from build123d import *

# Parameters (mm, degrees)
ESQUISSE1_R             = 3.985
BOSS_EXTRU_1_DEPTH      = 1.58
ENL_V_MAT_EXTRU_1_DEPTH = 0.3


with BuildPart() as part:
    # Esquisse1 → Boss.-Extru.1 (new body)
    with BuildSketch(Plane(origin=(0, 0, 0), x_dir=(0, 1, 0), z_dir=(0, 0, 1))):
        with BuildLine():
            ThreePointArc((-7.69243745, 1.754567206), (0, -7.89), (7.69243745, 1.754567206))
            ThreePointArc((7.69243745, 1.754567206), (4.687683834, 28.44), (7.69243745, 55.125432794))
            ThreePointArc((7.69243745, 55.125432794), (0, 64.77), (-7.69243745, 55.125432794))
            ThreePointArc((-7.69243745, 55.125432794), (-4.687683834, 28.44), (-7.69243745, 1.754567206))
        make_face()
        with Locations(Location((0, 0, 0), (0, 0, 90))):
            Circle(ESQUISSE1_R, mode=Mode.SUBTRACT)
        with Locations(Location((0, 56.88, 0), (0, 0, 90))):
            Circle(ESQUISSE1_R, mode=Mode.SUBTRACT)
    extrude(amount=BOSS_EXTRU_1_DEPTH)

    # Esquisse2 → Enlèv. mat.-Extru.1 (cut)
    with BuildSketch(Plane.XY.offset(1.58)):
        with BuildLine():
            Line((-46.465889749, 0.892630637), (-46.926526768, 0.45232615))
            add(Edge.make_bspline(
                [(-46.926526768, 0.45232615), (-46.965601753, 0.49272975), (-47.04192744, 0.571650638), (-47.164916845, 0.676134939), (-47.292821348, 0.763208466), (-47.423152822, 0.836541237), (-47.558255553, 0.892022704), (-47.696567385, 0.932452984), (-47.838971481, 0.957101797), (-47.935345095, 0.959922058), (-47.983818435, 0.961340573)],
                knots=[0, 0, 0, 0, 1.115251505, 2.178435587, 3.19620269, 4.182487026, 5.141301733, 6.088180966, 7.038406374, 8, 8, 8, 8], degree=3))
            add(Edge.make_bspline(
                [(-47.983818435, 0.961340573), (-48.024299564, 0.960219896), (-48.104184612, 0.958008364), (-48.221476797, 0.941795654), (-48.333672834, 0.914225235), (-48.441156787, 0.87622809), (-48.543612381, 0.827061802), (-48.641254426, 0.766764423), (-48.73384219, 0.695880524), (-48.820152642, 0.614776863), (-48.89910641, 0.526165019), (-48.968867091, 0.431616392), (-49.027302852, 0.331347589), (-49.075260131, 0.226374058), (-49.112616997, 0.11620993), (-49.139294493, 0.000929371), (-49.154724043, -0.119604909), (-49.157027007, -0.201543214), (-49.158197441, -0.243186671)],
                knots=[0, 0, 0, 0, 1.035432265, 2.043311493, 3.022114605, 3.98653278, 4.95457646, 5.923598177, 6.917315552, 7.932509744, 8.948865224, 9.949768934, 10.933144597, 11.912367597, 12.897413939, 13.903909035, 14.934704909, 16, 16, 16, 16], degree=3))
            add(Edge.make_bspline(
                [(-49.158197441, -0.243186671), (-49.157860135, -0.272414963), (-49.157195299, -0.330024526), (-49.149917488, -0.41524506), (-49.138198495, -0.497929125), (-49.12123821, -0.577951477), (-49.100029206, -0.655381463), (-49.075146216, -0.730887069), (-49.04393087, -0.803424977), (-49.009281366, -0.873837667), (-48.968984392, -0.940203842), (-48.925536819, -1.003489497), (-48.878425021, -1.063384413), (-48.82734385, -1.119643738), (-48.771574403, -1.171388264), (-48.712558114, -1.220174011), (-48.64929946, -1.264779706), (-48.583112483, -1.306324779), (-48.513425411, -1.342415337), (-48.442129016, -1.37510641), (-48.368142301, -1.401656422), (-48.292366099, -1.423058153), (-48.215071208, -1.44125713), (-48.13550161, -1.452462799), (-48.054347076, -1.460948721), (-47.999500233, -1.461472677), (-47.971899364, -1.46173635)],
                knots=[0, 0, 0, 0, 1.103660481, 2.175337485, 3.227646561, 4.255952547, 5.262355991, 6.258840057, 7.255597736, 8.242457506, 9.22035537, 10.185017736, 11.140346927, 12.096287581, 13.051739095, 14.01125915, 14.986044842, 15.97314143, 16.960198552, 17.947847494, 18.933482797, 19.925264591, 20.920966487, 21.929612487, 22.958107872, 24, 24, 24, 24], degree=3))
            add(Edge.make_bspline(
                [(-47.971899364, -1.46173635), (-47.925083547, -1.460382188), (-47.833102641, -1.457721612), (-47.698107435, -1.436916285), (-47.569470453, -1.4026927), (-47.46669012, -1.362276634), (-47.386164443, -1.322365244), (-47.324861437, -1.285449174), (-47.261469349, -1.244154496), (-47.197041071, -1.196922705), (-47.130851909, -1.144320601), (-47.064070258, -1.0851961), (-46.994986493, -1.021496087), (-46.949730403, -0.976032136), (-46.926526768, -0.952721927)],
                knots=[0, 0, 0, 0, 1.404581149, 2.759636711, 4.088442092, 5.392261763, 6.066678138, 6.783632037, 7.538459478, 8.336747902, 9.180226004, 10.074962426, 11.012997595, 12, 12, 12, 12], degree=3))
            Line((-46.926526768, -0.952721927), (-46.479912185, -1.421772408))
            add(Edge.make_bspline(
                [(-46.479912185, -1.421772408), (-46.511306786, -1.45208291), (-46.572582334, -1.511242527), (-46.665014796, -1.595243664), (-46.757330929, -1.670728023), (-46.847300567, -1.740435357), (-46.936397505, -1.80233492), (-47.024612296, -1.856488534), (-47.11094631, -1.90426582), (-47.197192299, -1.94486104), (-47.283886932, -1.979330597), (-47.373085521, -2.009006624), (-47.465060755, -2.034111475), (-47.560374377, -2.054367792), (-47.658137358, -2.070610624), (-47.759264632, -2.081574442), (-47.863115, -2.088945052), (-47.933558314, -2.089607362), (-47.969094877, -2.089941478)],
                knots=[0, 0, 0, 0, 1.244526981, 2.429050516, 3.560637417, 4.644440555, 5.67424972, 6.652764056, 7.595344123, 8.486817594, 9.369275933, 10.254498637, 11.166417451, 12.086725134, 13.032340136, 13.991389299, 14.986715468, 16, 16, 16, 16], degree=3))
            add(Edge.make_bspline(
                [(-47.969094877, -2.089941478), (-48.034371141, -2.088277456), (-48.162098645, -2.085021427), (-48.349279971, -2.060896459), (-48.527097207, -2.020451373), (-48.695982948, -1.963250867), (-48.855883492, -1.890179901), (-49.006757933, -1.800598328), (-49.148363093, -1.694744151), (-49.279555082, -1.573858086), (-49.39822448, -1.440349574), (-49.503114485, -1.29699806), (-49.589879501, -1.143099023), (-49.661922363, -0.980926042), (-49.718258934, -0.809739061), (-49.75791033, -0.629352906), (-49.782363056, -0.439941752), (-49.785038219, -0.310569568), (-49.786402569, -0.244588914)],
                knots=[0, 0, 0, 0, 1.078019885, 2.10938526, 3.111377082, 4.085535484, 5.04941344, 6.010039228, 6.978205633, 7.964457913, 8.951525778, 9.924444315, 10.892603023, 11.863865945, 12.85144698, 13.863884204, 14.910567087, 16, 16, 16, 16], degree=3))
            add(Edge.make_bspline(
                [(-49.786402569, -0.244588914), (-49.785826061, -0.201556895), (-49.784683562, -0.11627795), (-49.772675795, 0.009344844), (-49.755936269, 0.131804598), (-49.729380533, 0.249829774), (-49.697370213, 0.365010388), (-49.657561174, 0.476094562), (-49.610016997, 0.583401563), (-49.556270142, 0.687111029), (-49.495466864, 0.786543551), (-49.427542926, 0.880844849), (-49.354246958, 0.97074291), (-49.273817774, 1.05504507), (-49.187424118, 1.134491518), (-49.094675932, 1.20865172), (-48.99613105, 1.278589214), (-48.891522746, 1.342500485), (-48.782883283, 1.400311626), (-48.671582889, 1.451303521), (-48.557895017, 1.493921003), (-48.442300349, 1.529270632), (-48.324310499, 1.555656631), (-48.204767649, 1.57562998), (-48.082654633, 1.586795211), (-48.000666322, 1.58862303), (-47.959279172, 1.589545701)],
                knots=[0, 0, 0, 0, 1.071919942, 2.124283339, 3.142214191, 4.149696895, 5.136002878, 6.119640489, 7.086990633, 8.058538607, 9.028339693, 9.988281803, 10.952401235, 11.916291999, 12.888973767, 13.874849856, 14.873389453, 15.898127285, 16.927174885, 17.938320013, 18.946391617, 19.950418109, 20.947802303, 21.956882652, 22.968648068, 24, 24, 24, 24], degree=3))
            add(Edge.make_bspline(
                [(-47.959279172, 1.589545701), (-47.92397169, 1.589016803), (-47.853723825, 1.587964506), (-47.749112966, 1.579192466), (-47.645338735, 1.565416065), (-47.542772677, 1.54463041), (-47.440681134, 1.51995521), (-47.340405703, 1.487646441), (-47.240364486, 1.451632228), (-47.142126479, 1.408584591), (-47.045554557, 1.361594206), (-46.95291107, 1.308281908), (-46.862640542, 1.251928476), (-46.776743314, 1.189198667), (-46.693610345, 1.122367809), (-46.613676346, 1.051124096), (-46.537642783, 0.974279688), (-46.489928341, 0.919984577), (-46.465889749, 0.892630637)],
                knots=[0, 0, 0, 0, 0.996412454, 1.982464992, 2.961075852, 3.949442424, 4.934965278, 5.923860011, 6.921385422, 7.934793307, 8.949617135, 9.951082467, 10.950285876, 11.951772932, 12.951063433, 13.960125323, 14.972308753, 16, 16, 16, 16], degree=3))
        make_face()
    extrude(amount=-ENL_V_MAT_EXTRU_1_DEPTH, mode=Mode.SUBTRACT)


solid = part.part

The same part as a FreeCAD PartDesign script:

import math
import FreeCAD as App
import Part
import Sketcher
from FreeCAD import Vector

doc = App.newDocument("Part")
params = doc.addObject("Spreadsheet::Sheet", "Params")
for row, (alias, value) in enumerate([
    ("sketch1_radius", "120 mm"),
    ("sketch1_diameter", "7.97 mm"),
    ("sketch1_radius2", "7.89 mm"),
    ("pad1_length", "1.58 mm"),
    ("pocket1_length", "0.3 mm"),
], start=1):
    params.set(f"A{row}", alias)
    params.set(f"B{row}", "=" + value)
    params.setAlias(f"B{row}", alias)

body = doc.addObject("PartDesign::Body", "Body")

# Sketch on XY plane
sketch1 = doc.addObject("Sketcher::SketchObject", "Sketch")
body.addObject(sketch1)
sketch1.AttachmentSupport = (doc.XY_Plane, [""])
sketch1.MapMode = "FlatFace"
sketch1.addGeometry([
    Part.ArcOfCircle(Part.Circle(Vector(0, 0, 0), Vector(0, 0, 1), 7.9), math.radians(-103), math.radians(103)),  # 0
    Part.ArcOfCircle(Part.Circle(Vector(-28.4, 124.7, 0), Vector(0, 0, 1), 120), math.radians(-103), math.radians(-77)),  # 1
    Part.ArcOfCircle(Part.Circle(Vector(-56.9, 0, 0), Vector(0, 0, 1), 7.9), math.radians(77), math.radians(283)),  # 2
    Part.ArcOfCircle(Part.Circle(Vector(-28.4, -124.7, 0), Vector(0, 0, 1), 120), math.radians(77), math.radians(103)),  # 3
    Part.Circle(Vector(0, 0, 0), Vector(0, 0, 1), 4),  # 4
    Part.Circle(Vector(-56.9, 0, 0), Vector(0, 0, 1), 4),  # 5
], False)
sketch1.addConstraint([
    Sketcher.Constraint("Tangent", 0, 2, 1, 2),
    Sketcher.Constraint("Tangent", 1, 1, 2, 1),
    Sketcher.Constraint("Tangent", 2, 2, 3, 2),
    Sketcher.Constraint("Tangent", 3, 1, 0, 1),
    Sketcher.Constraint("Coincident", 0, 3, -1, 1),
    Sketcher.Constraint("Coincident", 4, 3, -1, 1),
    Sketcher.Constraint("Coincident", 5, 3, 2, 3),
    Sketcher.Constraint("Equal", 0, 2),
    Sketcher.Constraint("Equal", 1, 3),
    Sketcher.Constraint("Equal", 4, 5),
    Sketcher.Constraint("PointOnObject", 2, 3, -1),
    Sketcher.Constraint("Radius", 1, 120.0),
    Sketcher.Constraint("Diameter", 4, 7.97),
    Sketcher.Constraint("Radius", 0, 7.89),
    Sketcher.Constraint("DistanceX", 1, 3, -1, 1, 28.44),
])
sketch1.setExpression("Constraints[11]", "Params.sketch1_radius")
sketch1.setExpression("Constraints[12]", "Params.sketch1_diameter")
sketch1.setExpression("Constraints[13]", "Params.sketch1_radius2")
pad1 = doc.addObject("PartDesign::Pad", "Pad")
body.addObject(pad1)
pad1.Profile = sketch1
pad1.setExpression("Length", "Params.pad1_length")

# Sketch on XY plane
sketch2 = doc.addObject("Sketcher::SketchObject", "Sketch001")
body.addObject(sketch2)
sketch2.AttachmentSupport = (doc.XY_Plane, [""])
sketch2.MapMode = "FlatFace"
sketch2.AttachmentOffset = App.Placement(Vector(0, 0, 1.58), App.Rotation())
sketch2.addGeometry([
    Part.LineSegment(Vector(-46.926527, 0.452326, 0), Vector(-46.46589, 0.892631, 0)),  # 0
    Part.BSplineCurve([Vector(-47.959279, 1.589546, 0), Vector(-47.923972, 1.589017, 0), Vector(-47.853724, 1.587965, 0), Vector(-47.749113, 1.579192, 0), Vector(-47.645339, 1.565416, 0), Vector(-47.542773, 1.54463, 0), Vector(-47.440681, 1.519955, 0), Vector(-47.340406, 1.487646, 0), Vector(-47.240364, 1.451632, 0), Vector(-47.142126, 1.408585, 0), Vector(-47.045555, 1.361594, 0), Vector(-46.952911, 1.308282, 0), Vector(-46.862641, 1.251928, 0), Vector(-46.776743, 1.189199, 0), Vector(-46.69361, 1.122368, 0), Vector(-46.613676, 1.051124, 0), Vector(-46.537643, 0.97428, 0), Vector(-46.489928, 0.919985, 0), Vector(-46.46589, 0.892631, 0)], [4, 1, 1, 1, 1, 1, 1, 1, 1, 1, 1, 1, 1, 1, 1, 1, 4], [0, 0.996412454, 1.982464992, 2.961075852, 3.949442424, 4.934965278, 5.923860011, 6.921385422, 7.934793307, 8.949617135, 9.951082467, 10.950285876, 11.951772932, 12.951063433, 13.960125323, 14.972308753, 16], False, 3, [1, 1, 1, 1, 1, 1, 1, 1, 1, 1, 1, 1, 1, 1, 1, 1, 1, 1, 1], False),  # 1
    Part.BSplineCurve([Vector(-49.786403, -0.244589, 0), Vector(-49.785826, -0.201557, 0), Vector(-49.784684, -0.116278, 0), Vector(-49.772676, 0.009345, 0), Vector(-49.755936, 0.131805, 0), Vector(-49.729381, 0.24983, 0), Vector(-49.69737, 0.36501, 0), Vector(-49.657561, 0.476095, 0), Vector(-49.610017, 0.583402, 0), Vector(-49.55627, 0.687111, 0), Vector(-49.495467, 0.786544, 0), Vector(-49.427543, 0.880845, 0), Vector(-49.354247, 0.970743, 0), Vector(-49.273818, 1.055045, 0), Vector(-49.187424, 1.134492, 0), Vector(-49.094676, 1.208652, 0), Vector(-48.996131, 1.278589, 0), Vector(-48.891523, 1.3425, 0), Vector(-48.782883, 1.400312, 0), Vector(-48.671583, 1.451304, 0), Vector(-48.557895, 1.493921, 0), Vector(-48.4423, 1.529271, 0), Vector(-48.32431, 1.555657, 0), Vector(-48.204768, 1.57563, 0), Vector(-48.082655, 1.586795, 0), Vector(-48.000666, 1.588623, 0), Vector(-47.959279, 1.589546, 0)], [4, 1, 1, 1, 1, 1, 1, 1, 1, 1, 1, 1, 1, 1, 1, 1, 1, 1, 1, 1, 1, 1, 1, 1, 4], [0, 1.071919942, 2.124283339, 3.142214191, 4.149696895, 5.136002878, 6.119640489, 7.086990633, 8.058538607, 9.028339693, 9.988281803, 10.952401235, 11.916291999, 12.888973767, 13.874849856, 14.873389453, 15.898127285, 16.927174885, 17.938320013, 18.946391617, 19.950418109, 20.947802303, 21.956882652, 22.968648068, 24], False, 3, [1, 1, 1, 1, 1, 1, 1, 1, 1, 1, 1, 1, 1, 1, 1, 1, 1, 1, 1, 1, 1, 1, 1, 1, 1, 1, 1], False),  # 2
    Part.BSplineCurve([Vector(-47.969095, -2.089941, 0), Vector(-48.034371, -2.088277, 0), Vector(-48.162099, -2.085021, 0), Vector(-48.34928, -2.060896, 0), Vector(-48.527097, -2.020451, 0), Vector(-48.695983, -1.963251, 0), Vector(-48.855883, -1.89018, 0), Vector(-49.006758, -1.800598, 0), Vector(-49.148363, -1.694744, 0), Vector(-49.279555, -1.573858, 0), Vector(-49.398224, -1.44035, 0), Vector(-49.503114, -1.296998, 0), Vector(-49.58988, -1.143099, 0), Vector(-49.661922, -0.980926, 0), Vector(-49.718259, -0.809739, 0), Vector(-49.75791, -0.629353, 0), Vector(-49.782363, -0.439942, 0), Vector(-49.785038, -0.31057, 0), Vector(-49.786403, -0.244589, 0)], [4, 1, 1, 1, 1, 1, 1, 1, 1, 1, 1, 1, 1, 1, 1, 1, 4], [0, 1.078019885, 2.10938526, 3.111377082, 4.085535484, 5.04941344, 6.010039228, 6.978205633, 7.964457913, 8.951525778, 9.924444315, 10.892603023, 11.863865945, 12.85144698, 13.863884204, 14.910567087, 16], False, 3, [1, 1, 1, 1, 1, 1, 1, 1, 1, 1, 1, 1, 1, 1, 1, 1, 1, 1, 1], False),  # 3
    Part.BSplineCurve([Vector(-46.479912, -1.421772, 0), Vector(-46.511307, -1.452083, 0), Vector(-46.572582, -1.511243, 0), Vector(-46.665015, -1.595244, 0), Vector(-46.757331, -1.670728, 0), Vector(-46.847301, -1.740435, 0), Vector(-46.936398, -1.802335, 0), Vector(-47.024612, -1.856489, 0), Vector(-47.110946, -1.904266, 0), Vector(-47.197192, -1.944861, 0), Vector(-47.283887, -1.979331, 0), Vector(-47.373086, -2.009007, 0), Vector(-47.465061, -2.034111, 0), Vector(-47.560374, -2.054368, 0), Vector(-47.658137, -2.070611, 0), Vector(-47.759265, -2.081574, 0), Vector(-47.863115, -2.088945, 0), Vector(-47.933558, -2.089607, 0), Vector(-47.969095, -2.089941, 0)], [4, 1, 1, 1, 1, 1, 1, 1, 1, 1, 1, 1, 1, 1, 1, 1, 4], [0, 1.244526981, 2.429050516, 3.560637417, 4.644440555, 5.67424972, 6.652764056, 7.595344123, 8.486817594, 9.369275933, 10.254498637, 11.166417451, 12.086725134, 13.032340136, 13.991389299, 14.986715468, 16], False, 3, [1, 1, 1, 1, 1, 1, 1, 1, 1, 1, 1, 1, 1, 1, 1, 1, 1, 1, 1], False),  # 4
    Part.LineSegment(Vector(-46.479912, -1.421772, 0), Vector(-46.926527, -0.952722, 0)),  # 5
    Part.BSplineCurve([Vector(-47.971899, -1.461736, 0), Vector(-47.925084, -1.460382, 0), Vector(-47.833103, -1.457722, 0), Vector(-47.698107, -1.436916, 0), Vector(-47.56947, -1.402693, 0), Vector(-47.46669, -1.362277, 0), Vector(-47.386164, -1.322365, 0), Vector(-47.324861, -1.285449, 0), Vector(-47.261469, -1.244154, 0), Vector(-47.197041, -1.196923, 0), Vector(-47.130852, -1.144321, 0), Vector(-47.06407, -1.085196, 0), Vector(-46.994986, -1.021496, 0), Vector(-46.94973, -0.976032, 0), Vector(-46.926527, -0.952722, 0)], [4, 1, 1, 1, 1, 1, 1, 1, 1, 1, 1, 1, 4], [0, 1.404581149, 2.759636711, 4.088442092, 5.392261763, 6.066678138, 6.783632037, 7.538459478, 8.336747902, 9.180226004, 10.074962426, 11.012997595, 12], False, 3, [1, 1, 1, 1, 1, 1, 1, 1, 1, 1, 1, 1, 1, 1, 1], False),  # 6
    Part.BSplineCurve([Vector(-49.158197, -0.243187, 0), Vector(-49.15786, -0.272415, 0), Vector(-49.157195, -0.330025, 0), Vector(-49.149917, -0.415245, 0), Vector(-49.138198, -0.497929, 0), Vector(-49.121238, -0.577951, 0), Vector(-49.100029, -0.655381, 0), Vector(-49.075146, -0.730887, 0), Vector(-49.043931, -0.803425, 0), Vector(-49.009281, -0.873838, 0), Vector(-48.968984, -0.940204, 0), Vector(-48.925537, -1.003489, 0), Vector(-48.878425, -1.063384, 0), Vector(-48.827344, -1.119644, 0), Vector(-48.771574, -1.171388, 0), Vector(-48.712558, -1.220174, 0), Vector(-48.649299, -1.26478, 0), Vector(-48.583112, -1.306325, 0), Vector(-48.513425, -1.342415, 0), Vector(-48.442129, -1.375106, 0), Vector(-48.368142, -1.401656, 0), Vector(-48.292366, -1.423058, 0), Vector(-48.215071, -1.441257, 0), Vector(-48.135502, -1.452463, 0), Vector(-48.054347, -1.460949, 0), Vector(-47.9995, -1.461473, 0), Vector(-47.971899, -1.461736, 0)], [4, 1, 1, 1, 1, 1, 1, 1, 1, 1, 1, 1, 1, 1, 1, 1, 1, 1, 1, 1, 1, 1, 1, 1, 4], [0, 1.103660481, 2.175337485, 3.227646561, 4.255952547, 5.262355991, 6.258840057, 7.255597736, 8.242457506, 9.22035537, 10.185017736, 11.140346927, 12.096287581, 13.051739095, 14.01125915, 14.986044842, 15.97314143, 16.960198552, 17.947847494, 18.933482797, 19.925264591, 20.920966487, 21.929612487, 22.958107872, 24], False, 3, [1, 1, 1, 1, 1, 1, 1, 1, 1, 1, 1, 1, 1, 1, 1, 1, 1, 1, 1, 1, 1, 1, 1, 1, 1, 1, 1], False),  # 7
    Part.BSplineCurve([Vector(-47.983818, 0.961341, 0), Vector(-48.0243, 0.96022, 0), Vector(-48.104185, 0.958008, 0), Vector(-48.221477, 0.941796, 0), Vector(-48.333673, 0.914225, 0), Vector(-48.441157, 0.876228, 0), Vector(-48.543612, 0.827062, 0), Vector(-48.641254, 0.766764, 0), Vector(-48.733842, 0.695881, 0), Vector(-48.820153, 0.614777, 0), Vector(-48.899106, 0.526165, 0), Vector(-48.968867, 0.431616, 0), Vector(-49.027303, 0.331348, 0), Vector(-49.07526, 0.226374, 0), Vector(-49.112617, 0.11621, 0), Vector(-49.139294, 0.000929, 0), Vector(-49.154724, -0.119605, 0), Vector(-49.157027, -0.201543, 0), Vector(-49.158197, -0.243187, 0)], [4, 1, 1, 1, 1, 1, 1, 1, 1, 1, 1, 1, 1, 1, 1, 1, 4], [0, 1.035432265, 2.043311493, 3.022114605, 3.98653278, 4.95457646, 5.923598177, 6.917315552, 7.932509744, 8.948865224, 9.949768934, 10.933144597, 11.912367597, 12.897413939, 13.903909035, 14.934704909, 16], False, 3, [1, 1, 1, 1, 1, 1, 1, 1, 1, 1, 1, 1, 1, 1, 1, 1, 1, 1, 1], False),  # 8
    Part.BSplineCurve([Vector(-46.926527, 0.452326, 0), Vector(-46.965602, 0.49273, 0), Vector(-47.041927, 0.571651, 0), Vector(-47.164917, 0.676135, 0), Vector(-47.292821, 0.763208, 0), Vector(-47.423153, 0.836541, 0), Vector(-47.558256, 0.892023, 0), Vector(-47.696567, 0.932453, 0), Vector(-47.838971, 0.957102, 0), Vector(-47.935345, 0.959922, 0), Vector(-47.983818, 0.961341, 0)], [4, 1, 1, 1, 1, 1, 1, 1, 4], [0, 1.115251505, 2.178435587, 3.19620269, 4.182487026, 5.141301733, 6.088180966, 7.038406374, 8], False, 3, [1, 1, 1, 1, 1, 1, 1, 1, 1, 1, 1], False),  # 9
], False)
sketch2.addConstraint([
    Sketcher.Constraint("Block", 1),
    Sketcher.Constraint("Block", 2),
    Sketcher.Constraint("Block", 3),
    Sketcher.Constraint("Block", 4),
    Sketcher.Constraint("Block", 6),
    Sketcher.Constraint("Block", 7),
    Sketcher.Constraint("Block", 8),
    Sketcher.Constraint("Block", 9),
    Sketcher.Constraint("Coincident", 0, 2, 1, 2),
    Sketcher.Constraint("Coincident", 4, 1, 5, 1),
    Sketcher.Constraint("Coincident", 5, 2, 6, 2),
    Sketcher.Constraint("Coincident", 9, 1, 0, 1),
])
pocket1 = doc.addObject("PartDesign::Pocket", "Pocket")
body.addObject(pocket1)
pocket1.Profile = sketch2
pocket1.setExpression("Length", "Params.pocket1_length")

doc.recompute()
